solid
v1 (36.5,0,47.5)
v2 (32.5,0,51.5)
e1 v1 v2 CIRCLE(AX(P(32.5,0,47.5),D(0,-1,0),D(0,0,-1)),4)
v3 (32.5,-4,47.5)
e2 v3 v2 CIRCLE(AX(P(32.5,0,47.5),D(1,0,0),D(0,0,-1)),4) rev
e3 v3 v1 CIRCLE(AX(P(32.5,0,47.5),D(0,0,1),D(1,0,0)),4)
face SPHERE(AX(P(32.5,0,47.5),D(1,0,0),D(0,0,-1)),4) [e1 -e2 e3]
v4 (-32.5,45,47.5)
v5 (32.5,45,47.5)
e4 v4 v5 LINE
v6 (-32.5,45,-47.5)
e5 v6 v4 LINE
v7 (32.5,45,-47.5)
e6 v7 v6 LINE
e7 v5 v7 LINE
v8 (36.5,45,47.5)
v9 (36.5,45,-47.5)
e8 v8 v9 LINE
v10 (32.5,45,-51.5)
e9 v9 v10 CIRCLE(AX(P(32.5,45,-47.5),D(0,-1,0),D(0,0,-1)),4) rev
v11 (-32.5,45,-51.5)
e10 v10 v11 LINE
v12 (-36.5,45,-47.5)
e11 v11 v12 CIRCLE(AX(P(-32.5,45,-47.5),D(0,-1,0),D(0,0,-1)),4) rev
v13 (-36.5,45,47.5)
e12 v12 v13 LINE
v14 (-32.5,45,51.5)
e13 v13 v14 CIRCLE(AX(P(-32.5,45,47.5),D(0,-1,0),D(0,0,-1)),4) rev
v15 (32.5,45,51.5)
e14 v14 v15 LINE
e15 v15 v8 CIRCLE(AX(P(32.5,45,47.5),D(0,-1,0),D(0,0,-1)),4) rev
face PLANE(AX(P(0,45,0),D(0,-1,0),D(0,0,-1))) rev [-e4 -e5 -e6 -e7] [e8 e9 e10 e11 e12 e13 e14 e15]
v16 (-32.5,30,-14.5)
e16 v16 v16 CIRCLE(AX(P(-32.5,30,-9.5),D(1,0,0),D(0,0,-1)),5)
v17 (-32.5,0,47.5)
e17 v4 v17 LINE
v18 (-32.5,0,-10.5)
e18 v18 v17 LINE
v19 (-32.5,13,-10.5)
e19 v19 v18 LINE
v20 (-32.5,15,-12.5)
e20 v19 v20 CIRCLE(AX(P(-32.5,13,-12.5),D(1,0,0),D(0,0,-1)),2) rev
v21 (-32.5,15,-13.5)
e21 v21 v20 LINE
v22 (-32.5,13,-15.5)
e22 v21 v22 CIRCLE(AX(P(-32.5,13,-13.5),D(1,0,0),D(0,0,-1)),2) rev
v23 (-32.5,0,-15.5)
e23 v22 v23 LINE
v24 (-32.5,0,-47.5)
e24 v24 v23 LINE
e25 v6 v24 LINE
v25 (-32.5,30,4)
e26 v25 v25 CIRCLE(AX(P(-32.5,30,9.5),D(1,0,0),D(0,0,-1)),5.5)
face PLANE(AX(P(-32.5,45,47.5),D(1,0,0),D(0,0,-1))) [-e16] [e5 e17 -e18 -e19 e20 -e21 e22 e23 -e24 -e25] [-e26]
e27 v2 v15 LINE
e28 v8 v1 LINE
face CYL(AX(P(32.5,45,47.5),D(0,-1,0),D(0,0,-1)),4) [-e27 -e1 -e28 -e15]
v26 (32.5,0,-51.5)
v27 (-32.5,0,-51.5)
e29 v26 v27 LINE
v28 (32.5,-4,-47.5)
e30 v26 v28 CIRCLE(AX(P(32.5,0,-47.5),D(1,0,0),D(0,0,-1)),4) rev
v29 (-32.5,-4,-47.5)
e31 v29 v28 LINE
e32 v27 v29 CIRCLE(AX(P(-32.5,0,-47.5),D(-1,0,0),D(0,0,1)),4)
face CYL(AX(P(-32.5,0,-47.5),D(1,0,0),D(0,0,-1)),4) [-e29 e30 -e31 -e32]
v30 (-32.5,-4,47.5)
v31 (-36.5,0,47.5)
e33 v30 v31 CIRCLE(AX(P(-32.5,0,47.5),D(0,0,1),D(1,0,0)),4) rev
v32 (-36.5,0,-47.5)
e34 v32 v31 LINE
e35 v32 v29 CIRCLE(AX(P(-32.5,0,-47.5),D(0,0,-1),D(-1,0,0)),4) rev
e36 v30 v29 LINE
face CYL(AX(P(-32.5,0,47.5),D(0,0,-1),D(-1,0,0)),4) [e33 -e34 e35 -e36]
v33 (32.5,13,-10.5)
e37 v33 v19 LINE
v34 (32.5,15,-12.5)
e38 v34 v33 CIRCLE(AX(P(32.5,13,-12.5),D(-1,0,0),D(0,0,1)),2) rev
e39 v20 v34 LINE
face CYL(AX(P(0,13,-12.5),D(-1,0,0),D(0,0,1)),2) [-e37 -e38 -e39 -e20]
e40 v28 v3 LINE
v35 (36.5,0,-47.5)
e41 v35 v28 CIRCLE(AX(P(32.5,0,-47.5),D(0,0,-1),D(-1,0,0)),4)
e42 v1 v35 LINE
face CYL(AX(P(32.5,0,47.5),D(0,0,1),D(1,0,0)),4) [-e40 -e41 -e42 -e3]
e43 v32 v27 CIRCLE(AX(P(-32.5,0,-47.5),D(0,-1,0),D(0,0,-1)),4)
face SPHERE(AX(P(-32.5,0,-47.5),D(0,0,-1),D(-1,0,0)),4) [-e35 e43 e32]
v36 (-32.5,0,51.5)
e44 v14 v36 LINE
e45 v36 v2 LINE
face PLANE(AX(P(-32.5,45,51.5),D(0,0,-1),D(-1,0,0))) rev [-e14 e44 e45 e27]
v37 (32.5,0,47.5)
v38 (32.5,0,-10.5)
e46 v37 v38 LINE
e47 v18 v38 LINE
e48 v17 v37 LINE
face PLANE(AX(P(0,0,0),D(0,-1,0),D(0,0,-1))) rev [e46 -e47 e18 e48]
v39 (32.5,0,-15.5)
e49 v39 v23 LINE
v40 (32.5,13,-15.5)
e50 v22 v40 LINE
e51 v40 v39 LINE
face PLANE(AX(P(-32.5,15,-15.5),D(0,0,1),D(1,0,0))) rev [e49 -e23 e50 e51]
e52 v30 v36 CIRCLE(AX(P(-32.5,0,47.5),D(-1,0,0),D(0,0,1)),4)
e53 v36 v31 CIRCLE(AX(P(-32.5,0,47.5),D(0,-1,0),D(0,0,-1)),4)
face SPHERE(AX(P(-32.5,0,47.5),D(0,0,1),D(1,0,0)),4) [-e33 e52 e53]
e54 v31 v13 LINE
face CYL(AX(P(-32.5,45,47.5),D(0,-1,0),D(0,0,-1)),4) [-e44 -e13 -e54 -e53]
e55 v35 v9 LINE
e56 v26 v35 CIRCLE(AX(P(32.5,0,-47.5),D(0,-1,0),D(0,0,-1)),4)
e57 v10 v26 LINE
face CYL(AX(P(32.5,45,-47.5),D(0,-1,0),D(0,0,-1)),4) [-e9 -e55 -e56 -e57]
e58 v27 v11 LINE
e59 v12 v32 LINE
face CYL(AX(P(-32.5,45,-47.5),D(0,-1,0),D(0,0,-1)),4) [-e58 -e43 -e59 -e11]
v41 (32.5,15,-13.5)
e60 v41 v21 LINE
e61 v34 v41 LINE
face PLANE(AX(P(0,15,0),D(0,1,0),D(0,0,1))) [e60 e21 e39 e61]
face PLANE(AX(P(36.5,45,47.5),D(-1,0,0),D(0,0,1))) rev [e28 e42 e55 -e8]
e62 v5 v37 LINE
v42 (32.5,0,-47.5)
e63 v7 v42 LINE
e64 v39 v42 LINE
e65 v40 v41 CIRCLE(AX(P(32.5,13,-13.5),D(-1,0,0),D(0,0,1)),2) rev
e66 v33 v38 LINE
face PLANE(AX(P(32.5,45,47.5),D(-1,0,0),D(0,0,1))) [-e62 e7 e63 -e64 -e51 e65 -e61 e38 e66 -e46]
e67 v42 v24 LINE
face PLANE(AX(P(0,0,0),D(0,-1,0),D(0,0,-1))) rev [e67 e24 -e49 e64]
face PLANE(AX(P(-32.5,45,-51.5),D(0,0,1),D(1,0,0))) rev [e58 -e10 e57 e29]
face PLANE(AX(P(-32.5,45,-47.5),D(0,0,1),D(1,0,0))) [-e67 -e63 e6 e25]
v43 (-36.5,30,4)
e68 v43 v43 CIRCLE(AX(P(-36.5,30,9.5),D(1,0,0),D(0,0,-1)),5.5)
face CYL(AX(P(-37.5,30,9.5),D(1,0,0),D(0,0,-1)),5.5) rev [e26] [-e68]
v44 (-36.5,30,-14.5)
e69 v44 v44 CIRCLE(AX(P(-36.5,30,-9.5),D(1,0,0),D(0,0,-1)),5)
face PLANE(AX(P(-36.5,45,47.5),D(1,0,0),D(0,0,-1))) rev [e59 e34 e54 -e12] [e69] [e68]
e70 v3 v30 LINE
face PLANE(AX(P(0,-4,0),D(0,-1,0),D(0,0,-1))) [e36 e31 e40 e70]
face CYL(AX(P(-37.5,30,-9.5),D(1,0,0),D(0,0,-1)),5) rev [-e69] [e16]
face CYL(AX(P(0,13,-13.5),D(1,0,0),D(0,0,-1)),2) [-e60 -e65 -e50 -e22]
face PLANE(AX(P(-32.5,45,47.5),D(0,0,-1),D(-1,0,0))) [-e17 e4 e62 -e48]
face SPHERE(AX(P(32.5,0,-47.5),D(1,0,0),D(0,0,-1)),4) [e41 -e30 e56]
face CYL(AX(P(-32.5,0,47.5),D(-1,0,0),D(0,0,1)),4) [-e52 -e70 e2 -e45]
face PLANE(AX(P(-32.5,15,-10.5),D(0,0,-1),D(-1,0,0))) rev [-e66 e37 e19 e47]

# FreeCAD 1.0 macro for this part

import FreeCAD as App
import Part
import Sketcher
from FreeCAD import Vector


def edges_at(feature, points):
    """Names of the edges that pass closest to the given points."""
    edges = feature.Shape.Edges
    near = lambda p: min(range(len(edges)), key=lambda i: edges[i].distToShape(Part.Vertex(*p))[0])
    return sorted({f"Edge{near(p) + 1}" for p in points})


def faces_at(feature, points):
    """Names of the faces that lie closest to the given points."""
    faces = feature.Shape.Faces
    near = lambda p: min(range(len(faces)), key=lambda i: faces[i].distToShape(Part.Vertex(*p))[0])
    return sorted({f"Face{near(p) + 1}" for p in points})


def add_polygon(sketch, points):
    """Adds a closed chain of lines whose ends are joined by coincident constraints."""
    first, n = sketch.GeometryCount, len(points)
    for a, b in zip(points, points[1:] + points[:1]):
        sketch.addGeometry(Part.LineSegment(App.Vector(*a, 0), App.Vector(*b, 0)), False)
    for i in range(n):
        sketch.addConstraint(Sketcher.Constraint("Coincident", first + i, 2, first + (i + 1) % n, 1))

doc = App.newDocument("Part")
body = doc.addObject("PartDesign::Body", "Body")

# Sketch on XZ plane
sketch1 = doc.addObject("Sketcher::SketchObject", "Sketch")
body.addObject(sketch1)
sketch1.AttachmentSupport = (doc.XZ_Plane, [""])
sketch1.MapMode = "FlatFace"
add_polygon(sketch1, [(-32, -48), (-32, 48), (32, 48), (32, -48)])  # lines 0-3
sketch1.addConstraint([
    Sketcher.Constraint("Vertical", 0),
    Sketcher.Constraint("Horizontal", 1),
    Sketcher.Constraint("Vertical", 2),
    Sketcher.Constraint("Horizontal", 3),
    Sketcher.Constraint("Symmetric", 0, 2, 2, 2, -1, 1),
    Sketcher.Constraint("DistanceX", 1, 1, 1, 2, 65.0),
    Sketcher.Constraint("DistanceY", 0, 1, 0, 2, 95.0),
])
pad1 = doc.addObject("PartDesign::Pad", "Pad")
body.addObject(pad1)
pad1.Profile = sketch1
pad1.Length = 45
pad1.Reversed = True
doc.recompute()

thickness = doc.addObject("PartDesign::Thickness", "Thickness")
body.addObject(thickness)
thickness.Base = (pad1, faces_at(pad1, [(0, 45, 0)]))
thickness.Value = 4
thickness.Reversed = False
thickness.Join = "Intersection"

# Sketch on XZ plane
sketch2 = doc.addObject("Sketcher::SketchObject", "Sketch001")
body.addObject(sketch2)
sketch2.AttachmentSupport = (doc.XZ_Plane, [""])
sketch2.MapMode = "FlatFace"
add_polygon(sketch2, [(-32, -16), (-32, -10), (32, -10), (32, -16)])  # lines 0-3
sketch2.addConstraint([
    Sketcher.Constraint("Vertical", 0),
    Sketcher.Constraint("Horizontal", 1),
    Sketcher.Constraint("Vertical", 2),
    Sketcher.Constraint("Horizontal", 3),
    Sketcher.Constraint("DistanceX", 1, 1, 1, 2, 65.0),
    Sketcher.Constraint("DistanceY", 0, 1, 0, 2, 5.0),
    Sketcher.Constraint("DistanceX", 0, 2, -1, 1, 32.5),
    Sketcher.Constraint("DistanceY", 0, 2, -1, 1, 10.5),
])
pad2 = doc.addObject("PartDesign::Pad", "Pad001")
body.addObject(pad2)
pad2.Profile = sketch2
pad2.Length = 15
pad2.Reversed = True

# Sketch on YZ plane
sketch3 = doc.addObject("Sketcher::SketchObject", "Sketch002")
body.addObject(sketch3)
sketch3.AttachmentSupport = (doc.YZ_Plane, [""])
sketch3.MapMode = "FlatFace"
sketch3.AttachmentOffset = App.Placement(Vector(0, 0, -32.5), App.Rotation())
sketch3.addGeometry([
    Part.Circle(Vector(30, -10, 0), Vector(0, 0, 1), 5),
    Part.Circle(Vector(30, 10, 0), Vector(0, 0, 1), 6),
], False)
sketch3.addConstraint([
    Sketcher.Constraint("Symmetric", 0, 3, 1, 3, -1),
    Sketcher.Constraint("Diameter", 0, 10.0),
    Sketcher.Constraint("Diameter", 1, 11.0),
    Sketcher.Constraint("DistanceX", -1, 1, 0, 3, 30.0),
    Sketcher.Constraint("DistanceY", 0, 3, 1, 3, 19.0),
])
pocket1 = doc.addObject("PartDesign::Pocket", "Pocket")
body.addObject(pocket1)
pocket1.Profile = sketch3
pocket1.Length = 5
doc.recompute()

fillet = doc.addObject("PartDesign::Fillet", "Fillet")
body.addObject(fillet)
fillet.Base = (pocket1, edges_at(pocket1, [
    (0, -4, 51.5),
    (-36.5, -4, 0),
    (0, -4, -51.5),
    (36.5, -4, 0),
    (36.5, 20.5, 51.5),
    (-36.5, 20.5, 51.5),
    (-36.5, 20.5, -51.5),
    (36.5, 20.5, -51.5),
]))
fillet.Radius = 4
doc.recompute()

fillet2 = doc.addObject("PartDesign::Fillet", "Fillet001")
body.addObject(fillet2)
fillet2.Base = (fillet, edges_at(fillet, [(0, 15, -10.5), (0, 15, -15.5)]))
fillet2.Radius = 2

doc.recompute()
